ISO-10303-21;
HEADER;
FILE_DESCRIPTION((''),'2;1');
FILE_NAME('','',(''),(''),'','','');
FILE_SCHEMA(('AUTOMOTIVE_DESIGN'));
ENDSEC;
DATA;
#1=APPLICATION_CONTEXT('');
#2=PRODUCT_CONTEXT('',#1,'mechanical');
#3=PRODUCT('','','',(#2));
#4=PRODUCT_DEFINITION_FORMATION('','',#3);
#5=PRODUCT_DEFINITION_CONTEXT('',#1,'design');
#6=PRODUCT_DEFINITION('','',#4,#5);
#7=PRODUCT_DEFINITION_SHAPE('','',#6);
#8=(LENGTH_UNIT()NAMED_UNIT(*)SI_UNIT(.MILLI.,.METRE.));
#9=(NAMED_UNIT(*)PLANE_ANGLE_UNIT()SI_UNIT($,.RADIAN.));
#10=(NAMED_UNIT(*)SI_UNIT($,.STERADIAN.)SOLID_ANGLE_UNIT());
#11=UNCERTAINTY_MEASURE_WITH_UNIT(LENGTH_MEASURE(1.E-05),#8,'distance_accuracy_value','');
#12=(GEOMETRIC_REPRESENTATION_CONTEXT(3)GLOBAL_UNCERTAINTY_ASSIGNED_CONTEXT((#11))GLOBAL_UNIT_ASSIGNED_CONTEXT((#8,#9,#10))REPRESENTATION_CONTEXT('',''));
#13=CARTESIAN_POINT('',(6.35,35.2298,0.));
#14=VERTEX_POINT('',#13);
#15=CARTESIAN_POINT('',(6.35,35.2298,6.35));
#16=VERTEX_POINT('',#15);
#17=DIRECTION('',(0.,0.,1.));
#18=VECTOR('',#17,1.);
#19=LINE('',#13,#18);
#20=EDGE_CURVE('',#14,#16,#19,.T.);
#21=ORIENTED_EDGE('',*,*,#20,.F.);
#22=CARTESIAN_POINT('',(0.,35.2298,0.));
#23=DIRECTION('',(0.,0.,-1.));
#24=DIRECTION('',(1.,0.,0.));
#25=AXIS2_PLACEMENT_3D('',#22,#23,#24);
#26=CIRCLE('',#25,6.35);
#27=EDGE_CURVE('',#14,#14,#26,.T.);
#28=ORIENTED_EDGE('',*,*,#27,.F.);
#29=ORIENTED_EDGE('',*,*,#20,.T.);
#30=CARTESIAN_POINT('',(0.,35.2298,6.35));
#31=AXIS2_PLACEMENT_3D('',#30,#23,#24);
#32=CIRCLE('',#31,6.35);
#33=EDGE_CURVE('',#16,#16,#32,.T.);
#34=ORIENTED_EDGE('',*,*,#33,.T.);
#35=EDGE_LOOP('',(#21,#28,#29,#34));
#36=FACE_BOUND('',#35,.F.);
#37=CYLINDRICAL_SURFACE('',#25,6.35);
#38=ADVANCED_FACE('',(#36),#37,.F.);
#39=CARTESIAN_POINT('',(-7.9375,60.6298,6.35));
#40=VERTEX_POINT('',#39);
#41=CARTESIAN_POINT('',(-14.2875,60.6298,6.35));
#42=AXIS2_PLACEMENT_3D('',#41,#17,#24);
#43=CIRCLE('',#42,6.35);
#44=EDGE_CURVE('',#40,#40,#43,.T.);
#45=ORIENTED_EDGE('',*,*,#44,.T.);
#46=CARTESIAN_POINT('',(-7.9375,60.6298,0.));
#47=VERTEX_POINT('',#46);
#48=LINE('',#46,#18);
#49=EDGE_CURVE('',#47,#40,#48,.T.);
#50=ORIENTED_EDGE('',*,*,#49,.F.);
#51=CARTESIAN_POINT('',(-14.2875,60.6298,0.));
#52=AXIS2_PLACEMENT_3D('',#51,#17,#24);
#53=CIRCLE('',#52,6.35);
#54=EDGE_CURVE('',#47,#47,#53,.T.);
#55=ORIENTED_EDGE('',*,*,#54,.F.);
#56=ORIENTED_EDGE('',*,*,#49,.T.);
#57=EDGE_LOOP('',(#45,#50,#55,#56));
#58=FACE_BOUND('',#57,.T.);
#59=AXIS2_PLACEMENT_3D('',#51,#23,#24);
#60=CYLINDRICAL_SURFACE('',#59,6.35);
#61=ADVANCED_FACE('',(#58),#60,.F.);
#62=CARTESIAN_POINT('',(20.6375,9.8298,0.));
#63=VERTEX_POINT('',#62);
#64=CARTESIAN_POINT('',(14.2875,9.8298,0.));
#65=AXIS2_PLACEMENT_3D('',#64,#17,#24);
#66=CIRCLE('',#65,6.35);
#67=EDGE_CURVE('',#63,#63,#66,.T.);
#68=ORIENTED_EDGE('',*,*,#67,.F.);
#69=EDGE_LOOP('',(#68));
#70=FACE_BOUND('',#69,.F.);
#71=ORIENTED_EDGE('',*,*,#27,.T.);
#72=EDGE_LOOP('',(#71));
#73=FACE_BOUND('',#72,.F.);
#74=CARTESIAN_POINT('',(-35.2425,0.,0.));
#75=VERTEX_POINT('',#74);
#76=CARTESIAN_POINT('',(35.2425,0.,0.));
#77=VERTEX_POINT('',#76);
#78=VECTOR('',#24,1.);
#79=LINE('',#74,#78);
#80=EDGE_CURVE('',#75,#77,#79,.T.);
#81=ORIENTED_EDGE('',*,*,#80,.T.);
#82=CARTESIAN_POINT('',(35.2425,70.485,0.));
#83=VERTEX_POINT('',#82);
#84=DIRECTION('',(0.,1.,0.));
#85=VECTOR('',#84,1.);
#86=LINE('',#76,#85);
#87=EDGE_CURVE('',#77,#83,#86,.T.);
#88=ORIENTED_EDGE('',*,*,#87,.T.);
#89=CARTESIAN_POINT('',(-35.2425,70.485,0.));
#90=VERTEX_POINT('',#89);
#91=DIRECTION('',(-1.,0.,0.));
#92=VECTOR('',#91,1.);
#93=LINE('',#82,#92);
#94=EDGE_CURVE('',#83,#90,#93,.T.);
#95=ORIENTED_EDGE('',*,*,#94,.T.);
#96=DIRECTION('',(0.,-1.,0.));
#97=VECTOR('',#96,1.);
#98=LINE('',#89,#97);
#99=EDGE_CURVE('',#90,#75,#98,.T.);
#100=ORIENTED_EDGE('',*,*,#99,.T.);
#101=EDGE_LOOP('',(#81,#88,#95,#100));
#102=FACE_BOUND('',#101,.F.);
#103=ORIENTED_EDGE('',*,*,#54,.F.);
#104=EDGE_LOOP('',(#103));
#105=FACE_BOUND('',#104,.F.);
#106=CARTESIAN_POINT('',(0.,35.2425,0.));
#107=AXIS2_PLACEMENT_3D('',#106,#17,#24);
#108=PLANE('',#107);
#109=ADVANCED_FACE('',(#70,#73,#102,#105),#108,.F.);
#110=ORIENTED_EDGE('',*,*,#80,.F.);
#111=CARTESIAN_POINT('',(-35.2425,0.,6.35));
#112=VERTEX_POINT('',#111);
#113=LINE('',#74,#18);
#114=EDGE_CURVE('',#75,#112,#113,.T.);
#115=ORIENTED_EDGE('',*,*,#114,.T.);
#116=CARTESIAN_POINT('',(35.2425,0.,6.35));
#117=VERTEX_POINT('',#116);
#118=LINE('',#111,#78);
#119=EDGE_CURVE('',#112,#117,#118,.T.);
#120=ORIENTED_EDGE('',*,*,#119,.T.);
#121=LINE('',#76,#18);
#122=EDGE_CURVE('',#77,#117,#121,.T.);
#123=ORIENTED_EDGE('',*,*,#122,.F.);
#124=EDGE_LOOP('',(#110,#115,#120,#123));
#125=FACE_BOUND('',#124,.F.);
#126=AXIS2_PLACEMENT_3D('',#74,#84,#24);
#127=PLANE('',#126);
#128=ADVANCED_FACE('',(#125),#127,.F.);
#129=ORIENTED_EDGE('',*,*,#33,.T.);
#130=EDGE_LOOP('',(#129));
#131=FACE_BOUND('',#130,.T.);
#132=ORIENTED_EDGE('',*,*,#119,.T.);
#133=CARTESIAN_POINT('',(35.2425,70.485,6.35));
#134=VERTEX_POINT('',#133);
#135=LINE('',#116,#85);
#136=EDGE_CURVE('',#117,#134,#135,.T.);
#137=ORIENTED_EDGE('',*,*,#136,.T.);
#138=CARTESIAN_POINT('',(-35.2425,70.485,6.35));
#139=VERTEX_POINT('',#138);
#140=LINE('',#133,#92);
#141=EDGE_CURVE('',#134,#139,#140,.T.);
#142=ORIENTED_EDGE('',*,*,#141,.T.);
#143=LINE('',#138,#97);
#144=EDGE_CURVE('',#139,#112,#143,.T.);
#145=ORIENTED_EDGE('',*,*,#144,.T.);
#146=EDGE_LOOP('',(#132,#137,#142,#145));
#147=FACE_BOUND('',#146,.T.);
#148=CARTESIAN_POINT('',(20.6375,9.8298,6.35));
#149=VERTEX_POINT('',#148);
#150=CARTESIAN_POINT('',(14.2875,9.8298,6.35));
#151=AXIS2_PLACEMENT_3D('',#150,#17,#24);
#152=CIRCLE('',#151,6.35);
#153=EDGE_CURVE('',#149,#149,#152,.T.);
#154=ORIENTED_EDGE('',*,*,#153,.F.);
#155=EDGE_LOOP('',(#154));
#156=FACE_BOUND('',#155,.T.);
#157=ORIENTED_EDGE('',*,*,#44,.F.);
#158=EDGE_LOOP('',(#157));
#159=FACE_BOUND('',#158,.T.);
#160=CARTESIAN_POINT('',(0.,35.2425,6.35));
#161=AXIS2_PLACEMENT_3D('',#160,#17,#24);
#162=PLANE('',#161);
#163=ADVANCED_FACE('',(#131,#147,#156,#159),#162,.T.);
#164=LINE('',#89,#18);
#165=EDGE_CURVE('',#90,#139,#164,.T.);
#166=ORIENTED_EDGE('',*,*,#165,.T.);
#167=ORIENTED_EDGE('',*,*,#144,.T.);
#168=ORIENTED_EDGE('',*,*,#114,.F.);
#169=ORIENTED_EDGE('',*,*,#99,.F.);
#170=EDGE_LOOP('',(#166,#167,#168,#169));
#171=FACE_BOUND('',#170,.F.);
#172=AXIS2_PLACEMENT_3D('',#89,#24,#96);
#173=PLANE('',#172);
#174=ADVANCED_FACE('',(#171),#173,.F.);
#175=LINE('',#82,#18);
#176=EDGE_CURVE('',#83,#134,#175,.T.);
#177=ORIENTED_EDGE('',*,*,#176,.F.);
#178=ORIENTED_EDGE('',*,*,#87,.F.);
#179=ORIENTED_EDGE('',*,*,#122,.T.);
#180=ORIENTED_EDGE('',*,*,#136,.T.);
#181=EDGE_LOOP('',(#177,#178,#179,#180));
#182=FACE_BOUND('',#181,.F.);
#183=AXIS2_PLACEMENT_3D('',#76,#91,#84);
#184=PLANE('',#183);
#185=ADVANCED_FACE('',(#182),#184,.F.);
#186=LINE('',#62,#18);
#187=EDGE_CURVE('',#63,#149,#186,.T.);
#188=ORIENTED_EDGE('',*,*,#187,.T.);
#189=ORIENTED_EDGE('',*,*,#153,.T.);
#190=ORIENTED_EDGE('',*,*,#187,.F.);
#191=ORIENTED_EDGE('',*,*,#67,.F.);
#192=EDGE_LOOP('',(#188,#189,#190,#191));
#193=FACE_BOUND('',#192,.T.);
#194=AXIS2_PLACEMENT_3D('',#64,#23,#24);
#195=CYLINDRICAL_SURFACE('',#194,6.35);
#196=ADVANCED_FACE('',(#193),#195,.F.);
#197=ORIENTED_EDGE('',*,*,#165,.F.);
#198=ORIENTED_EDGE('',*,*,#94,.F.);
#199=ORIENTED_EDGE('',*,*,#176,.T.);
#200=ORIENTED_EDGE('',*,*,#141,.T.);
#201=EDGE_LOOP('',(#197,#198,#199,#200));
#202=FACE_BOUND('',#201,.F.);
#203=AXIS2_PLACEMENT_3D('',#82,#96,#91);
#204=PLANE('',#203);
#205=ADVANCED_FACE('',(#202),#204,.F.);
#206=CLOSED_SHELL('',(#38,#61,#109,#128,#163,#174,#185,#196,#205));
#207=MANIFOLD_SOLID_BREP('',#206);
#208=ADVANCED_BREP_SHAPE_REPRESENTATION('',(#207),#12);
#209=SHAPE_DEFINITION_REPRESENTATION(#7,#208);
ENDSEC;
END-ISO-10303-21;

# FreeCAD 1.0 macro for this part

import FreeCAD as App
import Part
import Sketcher
Q = App.Units.Quantity

doc = App.newDocument("Part")
body = doc.addObject("PartDesign::Body", "Body")

sketch1 = doc.addObject("Sketcher::SketchObject", "Sketch")
body.addObject(sketch1)
sketch1.AttachmentSupport = (doc.XY_Plane, [""])
sketch1.MapMode = "FlatFace"
sketch1.addGeometry(Part.LineSegment(App.Vector(-35.2425, 70.485, 0), App.Vector(-35.2425, 0, 0)), False)
sketch1.addGeometry(Part.LineSegment(App.Vector(-35.2425, 0, 0), App.Vector(35.2425, 0, 0)), False)
sketch1.addGeometry(Part.LineSegment(App.Vector(35.2425, 0, 0), App.Vector(35.2425, 70.485, 0)), False)
sketch1.addGeometry(Part.LineSegment(App.Vector(35.2425, 70.485, 0), App.Vector(-35.2425, 70.485, 0)), False)
sketch1.addGeometry(Part.Circle(App.Vector(14.2875, 9.8298, 0), App.Vector(0, 0, 1), 6.35), False)
sketch1.addGeometry(Part.Circle(App.Vector(-14.2875, 60.6298, 0), App.Vector(0, 0, 1), 6.35), False)
sketch1.addConstraint(Sketcher.Constraint("Coincident", 0, 2, 1, 1))
sketch1.addConstraint(Sketcher.Constraint("Coincident", 1, 2, 2, 1))
sketch1.addConstraint(Sketcher.Constraint("Coincident", 2, 2, 3, 1))
sketch1.addConstraint(Sketcher.Constraint("Coincident", 3, 2, 0, 1))
sketch1.addConstraint(Sketcher.Constraint("Vertical", 0))
sketch1.addConstraint(Sketcher.Constraint("Horizontal", 1))
sketch1.addConstraint(Sketcher.Constraint("Vertical", 2))
sketch1.addConstraint(Sketcher.Constraint("Horizontal", 3))
sketch1.addConstraint(Sketcher.Constraint("Equal", 4, 5))
sketch1.addConstraint(Sketcher.Constraint("Symmetric", 0, 2, 1, 2, -1, 1))
sketch1.addConstraint(Sketcher.Constraint("Equal", 3, 0))
sketch1.addConstraint(Sketcher.Constraint("Diameter", 4, Q("0.5 in")))
sketch1.addConstraint(Sketcher.Constraint("DistanceY", 4, 3, 5, 3, Q("2 in")))
sketch1.addConstraint(Sketcher.Constraint("DistanceX", 1, 1, 1, 2, Q("2.775 in")))
sketch1.addConstraint(Sketcher.Constraint("DistanceX", 0, 2, 4, 3, Q("1.95 in")))
sketch1.addConstraint(Sketcher.Constraint("DistanceX", 5, 3, 1, 2, Q("1.95 in")))
sketch1.addConstraint(Sketcher.Constraint("DistanceY", -1, 1, 4, 3, Q("0.387 in")))
pad1 = doc.addObject("PartDesign::Pad", "Pad")
body.addObject(pad1)
pad1.Profile = sketch1
pad1.Length = Q("0.25 in")

sketch2 = doc.addObject("Sketcher::SketchObject", "Sketch001")
body.addObject(sketch2)
sketch2.AttachmentSupport = (doc.XY_Plane, [""])
sketch2.MapMode = "FlatFace"
sketch2.addGeometry(Part.Circle(App.Vector(0, 35.2298, 0), App.Vector(0, 0, 1), 6.35), False)
sketch2.addConstraint(Sketcher.Constraint("PointOnObject", 0, 3, -2))
sketch2.addConstraint(Sketcher.Constraint("Diameter", 0, Q("0.5 in")))
sketch2.addConstraint(Sketcher.Constraint("DistanceY", -1, 1, 0, 3, Q("1.387 in")))
pocket1 = doc.addObject("PartDesign::Pocket", "Pocket")
body.addObject(pocket1)
pocket1.Profile = sketch2
pocket1.Type = "ThroughAll"
pocket1.Reversed = True

doc.recompute()
